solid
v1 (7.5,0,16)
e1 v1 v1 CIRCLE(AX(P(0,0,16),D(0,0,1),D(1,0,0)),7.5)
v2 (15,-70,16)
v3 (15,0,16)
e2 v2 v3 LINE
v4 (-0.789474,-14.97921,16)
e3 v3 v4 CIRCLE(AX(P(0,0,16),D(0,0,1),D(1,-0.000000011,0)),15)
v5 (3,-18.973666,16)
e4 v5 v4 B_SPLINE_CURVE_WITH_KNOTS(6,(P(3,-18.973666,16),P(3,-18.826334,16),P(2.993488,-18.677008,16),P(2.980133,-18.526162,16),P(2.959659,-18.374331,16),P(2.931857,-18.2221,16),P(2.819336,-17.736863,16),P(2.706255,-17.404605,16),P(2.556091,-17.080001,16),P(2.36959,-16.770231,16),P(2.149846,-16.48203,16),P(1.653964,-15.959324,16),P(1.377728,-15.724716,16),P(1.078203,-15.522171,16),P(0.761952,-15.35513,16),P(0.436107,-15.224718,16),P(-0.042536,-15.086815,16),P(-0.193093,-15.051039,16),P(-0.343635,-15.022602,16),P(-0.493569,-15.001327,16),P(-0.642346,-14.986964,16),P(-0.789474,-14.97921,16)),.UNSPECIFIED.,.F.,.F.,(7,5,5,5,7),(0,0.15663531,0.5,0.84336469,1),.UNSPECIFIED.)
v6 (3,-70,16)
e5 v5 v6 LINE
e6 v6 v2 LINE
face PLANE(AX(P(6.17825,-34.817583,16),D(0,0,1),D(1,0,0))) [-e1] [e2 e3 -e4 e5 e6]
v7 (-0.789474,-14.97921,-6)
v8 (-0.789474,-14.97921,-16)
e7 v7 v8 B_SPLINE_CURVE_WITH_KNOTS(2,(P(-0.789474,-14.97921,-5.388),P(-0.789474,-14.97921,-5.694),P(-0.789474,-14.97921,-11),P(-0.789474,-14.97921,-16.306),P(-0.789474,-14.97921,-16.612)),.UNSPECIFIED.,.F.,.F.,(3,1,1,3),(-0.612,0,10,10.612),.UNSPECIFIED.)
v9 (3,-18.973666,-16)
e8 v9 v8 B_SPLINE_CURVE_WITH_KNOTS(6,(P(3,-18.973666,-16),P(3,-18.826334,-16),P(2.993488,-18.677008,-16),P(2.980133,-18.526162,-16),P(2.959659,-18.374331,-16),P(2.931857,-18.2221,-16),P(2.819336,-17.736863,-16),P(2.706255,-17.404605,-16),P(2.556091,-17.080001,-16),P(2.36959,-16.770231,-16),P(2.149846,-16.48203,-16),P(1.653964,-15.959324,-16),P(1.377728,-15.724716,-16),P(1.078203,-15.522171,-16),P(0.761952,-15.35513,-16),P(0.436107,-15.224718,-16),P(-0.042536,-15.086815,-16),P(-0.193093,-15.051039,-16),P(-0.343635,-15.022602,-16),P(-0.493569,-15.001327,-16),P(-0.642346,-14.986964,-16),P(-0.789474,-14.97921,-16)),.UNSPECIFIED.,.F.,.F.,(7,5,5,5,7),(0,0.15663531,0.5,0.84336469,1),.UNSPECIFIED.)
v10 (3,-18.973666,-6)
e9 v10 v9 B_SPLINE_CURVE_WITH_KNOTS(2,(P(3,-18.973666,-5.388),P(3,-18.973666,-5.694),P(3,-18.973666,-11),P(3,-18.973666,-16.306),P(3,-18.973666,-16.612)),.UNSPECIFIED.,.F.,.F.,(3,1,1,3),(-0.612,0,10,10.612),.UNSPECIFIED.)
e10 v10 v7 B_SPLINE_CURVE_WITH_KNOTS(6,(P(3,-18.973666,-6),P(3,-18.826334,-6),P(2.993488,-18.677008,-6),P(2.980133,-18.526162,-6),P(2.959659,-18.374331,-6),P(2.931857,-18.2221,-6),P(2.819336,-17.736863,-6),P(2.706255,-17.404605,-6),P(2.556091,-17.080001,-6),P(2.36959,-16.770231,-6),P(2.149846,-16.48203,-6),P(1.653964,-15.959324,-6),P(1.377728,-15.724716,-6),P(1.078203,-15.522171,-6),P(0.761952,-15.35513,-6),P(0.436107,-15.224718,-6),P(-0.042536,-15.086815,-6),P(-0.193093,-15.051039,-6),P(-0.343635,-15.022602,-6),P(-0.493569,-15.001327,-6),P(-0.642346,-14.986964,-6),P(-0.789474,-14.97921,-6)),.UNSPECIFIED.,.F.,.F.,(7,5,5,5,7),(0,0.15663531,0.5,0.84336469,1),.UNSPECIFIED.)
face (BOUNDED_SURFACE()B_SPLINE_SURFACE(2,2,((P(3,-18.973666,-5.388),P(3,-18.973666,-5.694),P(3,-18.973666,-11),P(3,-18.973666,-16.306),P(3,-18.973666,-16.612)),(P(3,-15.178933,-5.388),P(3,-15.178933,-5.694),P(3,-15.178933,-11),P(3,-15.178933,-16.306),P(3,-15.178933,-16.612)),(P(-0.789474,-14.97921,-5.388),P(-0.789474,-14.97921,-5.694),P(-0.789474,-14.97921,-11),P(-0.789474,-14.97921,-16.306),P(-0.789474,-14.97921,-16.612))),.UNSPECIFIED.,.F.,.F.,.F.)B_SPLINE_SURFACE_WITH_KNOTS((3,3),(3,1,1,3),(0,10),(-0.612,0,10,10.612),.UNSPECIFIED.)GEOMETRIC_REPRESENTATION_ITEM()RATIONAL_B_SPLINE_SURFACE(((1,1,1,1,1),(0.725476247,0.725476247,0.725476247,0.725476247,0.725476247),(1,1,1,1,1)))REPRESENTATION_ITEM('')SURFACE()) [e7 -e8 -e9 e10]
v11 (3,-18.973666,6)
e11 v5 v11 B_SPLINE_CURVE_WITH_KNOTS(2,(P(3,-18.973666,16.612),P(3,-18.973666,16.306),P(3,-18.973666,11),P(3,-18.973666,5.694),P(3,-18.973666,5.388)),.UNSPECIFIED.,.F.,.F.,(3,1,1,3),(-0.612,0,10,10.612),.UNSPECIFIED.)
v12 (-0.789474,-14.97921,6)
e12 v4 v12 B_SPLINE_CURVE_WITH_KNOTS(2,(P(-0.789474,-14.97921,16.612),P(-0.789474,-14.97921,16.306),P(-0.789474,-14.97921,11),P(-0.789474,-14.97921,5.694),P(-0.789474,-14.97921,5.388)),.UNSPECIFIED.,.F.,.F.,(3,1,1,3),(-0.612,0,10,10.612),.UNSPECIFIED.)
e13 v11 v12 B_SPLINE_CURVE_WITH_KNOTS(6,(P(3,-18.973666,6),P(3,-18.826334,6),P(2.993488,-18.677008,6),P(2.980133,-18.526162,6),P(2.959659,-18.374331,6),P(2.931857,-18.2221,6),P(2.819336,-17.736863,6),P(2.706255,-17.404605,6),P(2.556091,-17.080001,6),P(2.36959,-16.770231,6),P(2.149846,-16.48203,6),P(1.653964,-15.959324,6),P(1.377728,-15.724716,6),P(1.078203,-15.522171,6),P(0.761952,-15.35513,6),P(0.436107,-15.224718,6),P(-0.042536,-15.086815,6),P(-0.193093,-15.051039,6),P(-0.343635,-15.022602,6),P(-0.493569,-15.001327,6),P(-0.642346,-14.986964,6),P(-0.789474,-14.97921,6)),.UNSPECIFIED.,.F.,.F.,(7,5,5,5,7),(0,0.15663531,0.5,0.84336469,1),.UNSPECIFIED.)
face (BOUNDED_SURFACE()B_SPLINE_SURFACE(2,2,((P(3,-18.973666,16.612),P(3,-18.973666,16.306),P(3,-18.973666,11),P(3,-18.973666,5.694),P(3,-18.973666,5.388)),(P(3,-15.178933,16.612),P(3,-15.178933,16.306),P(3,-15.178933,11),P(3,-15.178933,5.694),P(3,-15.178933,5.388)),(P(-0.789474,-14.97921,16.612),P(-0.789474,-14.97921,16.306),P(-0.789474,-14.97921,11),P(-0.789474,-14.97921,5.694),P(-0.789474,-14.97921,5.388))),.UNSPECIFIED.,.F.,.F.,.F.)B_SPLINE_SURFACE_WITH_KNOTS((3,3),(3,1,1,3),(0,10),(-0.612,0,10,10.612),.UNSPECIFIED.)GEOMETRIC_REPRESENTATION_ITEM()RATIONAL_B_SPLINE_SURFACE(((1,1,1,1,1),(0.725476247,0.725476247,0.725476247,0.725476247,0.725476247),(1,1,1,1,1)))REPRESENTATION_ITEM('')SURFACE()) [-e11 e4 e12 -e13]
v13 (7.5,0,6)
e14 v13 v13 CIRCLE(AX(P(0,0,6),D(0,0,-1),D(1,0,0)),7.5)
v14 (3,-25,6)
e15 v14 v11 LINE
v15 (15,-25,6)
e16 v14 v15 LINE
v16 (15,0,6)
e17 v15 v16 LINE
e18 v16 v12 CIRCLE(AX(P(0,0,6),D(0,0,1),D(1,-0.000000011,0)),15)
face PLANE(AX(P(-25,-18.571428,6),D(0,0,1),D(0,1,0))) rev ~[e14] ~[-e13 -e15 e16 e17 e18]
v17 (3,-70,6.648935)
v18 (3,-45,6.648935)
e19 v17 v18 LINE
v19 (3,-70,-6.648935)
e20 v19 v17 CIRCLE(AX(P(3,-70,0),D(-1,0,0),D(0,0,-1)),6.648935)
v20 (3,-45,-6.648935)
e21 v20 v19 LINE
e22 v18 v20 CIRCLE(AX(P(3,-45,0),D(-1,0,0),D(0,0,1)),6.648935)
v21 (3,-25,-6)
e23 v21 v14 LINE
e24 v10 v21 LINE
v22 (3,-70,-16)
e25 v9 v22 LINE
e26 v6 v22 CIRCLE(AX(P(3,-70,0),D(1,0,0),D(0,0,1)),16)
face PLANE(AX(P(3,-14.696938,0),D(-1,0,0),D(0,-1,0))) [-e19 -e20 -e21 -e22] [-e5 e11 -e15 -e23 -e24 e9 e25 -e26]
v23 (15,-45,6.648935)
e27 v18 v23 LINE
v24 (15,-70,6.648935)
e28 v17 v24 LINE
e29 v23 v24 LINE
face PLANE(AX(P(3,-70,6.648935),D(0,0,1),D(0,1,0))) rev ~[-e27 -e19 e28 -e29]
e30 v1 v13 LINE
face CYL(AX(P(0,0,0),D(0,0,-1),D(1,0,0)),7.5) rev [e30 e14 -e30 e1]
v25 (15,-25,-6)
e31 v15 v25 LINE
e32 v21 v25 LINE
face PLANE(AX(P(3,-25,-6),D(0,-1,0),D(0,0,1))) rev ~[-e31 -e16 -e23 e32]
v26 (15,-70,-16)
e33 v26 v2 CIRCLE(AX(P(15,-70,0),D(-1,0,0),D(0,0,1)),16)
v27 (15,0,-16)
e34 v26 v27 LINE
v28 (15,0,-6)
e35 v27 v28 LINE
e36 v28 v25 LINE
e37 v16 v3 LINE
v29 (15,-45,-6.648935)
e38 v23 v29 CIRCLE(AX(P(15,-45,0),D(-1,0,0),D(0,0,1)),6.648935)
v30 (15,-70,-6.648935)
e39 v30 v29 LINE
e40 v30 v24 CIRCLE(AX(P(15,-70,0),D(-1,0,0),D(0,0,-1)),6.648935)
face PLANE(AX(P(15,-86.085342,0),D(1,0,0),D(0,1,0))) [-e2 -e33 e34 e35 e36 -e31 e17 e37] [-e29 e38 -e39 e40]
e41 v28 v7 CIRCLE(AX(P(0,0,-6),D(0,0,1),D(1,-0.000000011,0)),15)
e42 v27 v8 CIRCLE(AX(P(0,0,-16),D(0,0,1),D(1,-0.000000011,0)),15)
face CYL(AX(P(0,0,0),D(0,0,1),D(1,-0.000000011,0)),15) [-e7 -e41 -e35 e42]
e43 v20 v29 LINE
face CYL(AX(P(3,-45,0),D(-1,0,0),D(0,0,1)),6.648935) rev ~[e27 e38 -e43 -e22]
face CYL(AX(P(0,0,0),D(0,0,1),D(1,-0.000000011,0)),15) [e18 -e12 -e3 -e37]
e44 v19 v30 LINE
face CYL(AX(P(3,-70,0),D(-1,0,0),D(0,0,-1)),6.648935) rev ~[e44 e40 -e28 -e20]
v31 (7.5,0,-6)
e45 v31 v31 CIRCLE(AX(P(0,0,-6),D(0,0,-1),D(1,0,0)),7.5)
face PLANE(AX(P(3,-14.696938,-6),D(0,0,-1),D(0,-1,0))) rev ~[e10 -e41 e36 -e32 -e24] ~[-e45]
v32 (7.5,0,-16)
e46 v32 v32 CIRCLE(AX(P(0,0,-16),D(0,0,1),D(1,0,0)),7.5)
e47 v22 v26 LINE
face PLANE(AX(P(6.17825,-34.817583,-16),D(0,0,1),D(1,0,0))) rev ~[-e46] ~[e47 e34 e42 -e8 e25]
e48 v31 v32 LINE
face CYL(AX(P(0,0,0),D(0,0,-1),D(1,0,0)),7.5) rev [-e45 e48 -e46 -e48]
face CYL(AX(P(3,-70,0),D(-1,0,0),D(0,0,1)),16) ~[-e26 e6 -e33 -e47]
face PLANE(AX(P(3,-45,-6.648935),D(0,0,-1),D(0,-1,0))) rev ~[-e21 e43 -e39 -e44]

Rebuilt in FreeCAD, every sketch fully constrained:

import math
import FreeCAD as App
import Part
import Sketcher


def edges_at(feature, points):
    """Names of the edges that pass closest to the given points."""
    edges = feature.Shape.Edges
    near = lambda p: min(range(len(edges)), key=lambda i: edges[i].distToShape(Part.Vertex(*p))[0])
    return sorted({f"Edge{near(p) + 1}" for p in points})


def add_polygon(sketch, points):
    """Adds a closed chain of lines whose ends are joined by coincident constraints."""
    first, n = sketch.GeometryCount, len(points)
    for a, b in zip(points, points[1:] + points[:1]):
        sketch.addGeometry(Part.LineSegment(App.Vector(*a, 0), App.Vector(*b, 0)), False)
    for i in range(n):
        sketch.addConstraint(Sketcher.Constraint("Coincident", first + i, 2, first + (i + 1) % n, 1))

doc = App.newDocument("Part")
params = doc.addObject("Spreadsheet::Sheet", "Params")
for row, (alias, value) in enumerate([
    ("sketch1_diameter", "15 mm"),
    ("sketch1_radius", "15 mm"),
    ("sketch1_width", "12 mm"),
    ("pad1_length", "32 mm"),
    ("sketch2_radius", "16 mm"),
    ("sketch2_width", "25 mm"),
    ("sketch2_height", "12 mm"),
    ("sketch3_height", "12 mm"),
    ("fillet_radius", "4 mm"),
], start=1):
    params.set(f"A{row}", alias)
    params.set(f"B{row}", "=" + value)
    params.setAlias(f"B{row}", alias)

body = doc.addObject("PartDesign::Body", "Body")

sketch1 = body.newObject("Sketcher::SketchObject", "Sketch")
sketch1.AttachmentSupport = (doc.getObject("XY_Plane"), [""])
sketch1.MapMode = "FlatFace"
sketch1.addGeometry([
    Part.LineSegment(App.Vector(15, -86.1, 0), App.Vector(15, 0, 0)),
    Part.ArcOfCircle(Part.Circle(App.Vector(0, 0, 0), App.Vector(0, 0, 1), 15), math.radians(0), math.radians(270)),
    Part.ArcOfCircle(Part.Circle(App.Vector(0, 0, 0), App.Vector(0, 0, 1), 15), math.radians(-90), math.radians(-78.46)),
    Part.LineSegment(App.Vector(3, -14.7, 0), App.Vector(3, -86.1, 0)),
    Part.LineSegment(App.Vector(3, -86.1, 0), App.Vector(15, -86.1, 0)),
    Part.Circle(App.Vector(0, 0, 0), App.Vector(0, 0, 1), 7.5),
], False)
sketch1.addConstraint([
    Sketcher.Constraint("Tangent", 0, 2, 1, 1),
    Sketcher.Constraint("Tangent", 1, 2, 2, 1),
    Sketcher.Constraint("Coincident", 2, 2, 3, 1),
    Sketcher.Constraint("Coincident", 3, 2, 4, 1),
    Sketcher.Constraint("Coincident", 4, 2, 0, 1),
    Sketcher.Constraint("Vertical", 0),
    Sketcher.Constraint("Vertical", 3),
    Sketcher.Constraint("Horizontal", 4),
    Sketcher.Constraint("Coincident", 1, 3, -1, 1),
    Sketcher.Constraint("Coincident", 5, 3, -1, 1),
    Sketcher.Constraint("PointOnObject", 1, 2, -2),
    Sketcher.Constraint("Diameter", 5, 15.0),
    Sketcher.Constraint("Radius", 1, 15.0),
    Sketcher.Constraint("DistanceX", 4, 1, 4, 2, 12.0),
    Sketcher.Constraint("Radius", 2, 15.000022),
    Sketcher.Constraint("DistanceY", 0, 1, 0, 2, 86.085342),
])
sketch1.setExpression("Constraints[11]", "Params.sketch1_diameter")
sketch1.setExpression("Constraints[12]", "Params.sketch1_radius")
sketch1.setExpression("Constraints[13]", "Params.sketch1_width")
pad1 = body.newObject("PartDesign::Pad", "Pad")
pad1.Profile = sketch1
pad1.setExpression("Length", "Params.pad1_length")
pad1.Midplane = True

sketch2 = body.newObject("Sketcher::SketchObject", "Sketch001")
sketch2.AttachmentSupport = (doc.getObject("YZ_Plane"), [""])
sketch2.MapMode = "FlatFace"
sketch2.AttachmentOffset = App.Placement(App.Vector(0, 0, 3), App.Rotation())
sketch2.addGeometry(Part.ArcOfCircle(Part.Circle(App.Vector(-70, 0, 0), App.Vector(0, 0, 1), 16), math.radians(90), math.radians(270)), False)
sketch2.addGeometry(Part.LineSegment(App.Vector(-70, -16, 0), App.Vector(-86, -16, 0)), False)
sketch2.addGeometry(Part.LineSegment(App.Vector(-86, -16, 0), App.Vector(-86, 16, 0)), False)
sketch2.addGeometry(Part.LineSegment(App.Vector(-86, 16, 0), App.Vector(-70, 16, 0)), False)
sketch2.addGeometry(Part.ArcOfCircle(Part.Circle(App.Vector(-45, 0, 0), App.Vector(0, 0, 1), 7), math.radians(-90), math.radians(90)), False)
sketch2.addGeometry(Part.LineSegment(App.Vector(-45, -7, 0), App.Vector(-70, -7, 0)), False)
sketch2.addGeometry(Part.ArcOfCircle(Part.Circle(App.Vector(-70, 0, 0), App.Vector(0, 0, 1), 7), math.radians(90), math.radians(270)), False)
sketch2.addGeometry(Part.LineSegment(App.Vector(-70, 7, 0), App.Vector(-45, 7, 0)), False)
add_polygon(sketch2, [(-15, 6), (-15, -6), (-25, -6), (-25, 6)])
sketch2.addConstraint([
    Sketcher.Constraint("Tangent", 0, 2, 1, 1),
    Sketcher.Constraint("Coincident", 1, 2, 2, 1),
    Sketcher.Constraint("Coincident", 2, 2, 3, 1),
    Sketcher.Constraint("Tangent", 3, 2, 0, 1),
    Sketcher.Constraint("Tangent", 4, 1, 5, 1),
    Sketcher.Constraint("Tangent", 5, 2, 6, 2),
    Sketcher.Constraint("Tangent", 6, 1, 7, 1),
    Sketcher.Constraint("Tangent", 7, 2, 4, 2),
    Sketcher.Constraint("Horizontal", 1),
    Sketcher.Constraint("Vertical", 2),
    Sketcher.Constraint("Horizontal", 3),
    Sketcher.Constraint("Horizontal", 5),
    Sketcher.Constraint("Horizontal", 7),
    Sketcher.Constraint("Vertical", 8),
    Sketcher.Constraint("Horizontal", 9),
    Sketcher.Constraint("Vertical", 10),
    Sketcher.Constraint("Horizontal", 11),
    Sketcher.Constraint("Coincident", 6, 3, 0, 3),
    Sketcher.Constraint("PointOnObject", 0, 3, -1),
    Sketcher.Constraint("Radius", 0, 16.0),
    Sketcher.Constraint("DistanceX", 5, 2, 5, 1, 25.0),
    Sketcher.Constraint("DistanceY", 8, 2, 8, 1, 12.0),
    Sketcher.Constraint("DistanceX", 0, 3, -1, 1, 70.0),
    Sketcher.Constraint("DistanceY", 8, 2, -1, 1, 6.0),
    Sketcher.Constraint("DistanceX", 9, 2, -1, 1, 25.0),
    Sketcher.Constraint("Radius", 4, 6.648935),
    Sketcher.Constraint("DistanceX", 1, 2, 1, 1, 16.085342),
    Sketcher.Constraint("DistanceX", 9, 2, 9, 1, 10.303062),
])
sketch2.setExpression("Constraints[23]", "Params.sketch2_radius")
sketch2.setExpression("Constraints[24]", "Params.sketch2_width")
sketch2.setExpression("Constraints[25]", "Params.sketch2_height")
pocket1 = body.newObject("PartDesign::Pocket", "Pocket")
pocket1.Profile = sketch2
pocket1.Type = "ThroughAll"
pocket1.Reversed = True

sketch3 = body.newObject("Sketcher::SketchObject", "Sketch002")
sketch3.AttachmentSupport = (doc.getObject("YZ_Plane"), [""])
sketch3.MapMode = "FlatFace"
sketch3.AttachmentOffset = App.Placement(App.Vector(0, 0, -25), App.Rotation())
add_polygon(sketch3, [(-19, 6), (-19, -6), (19, -6), (19, 6)])
sketch3.addConstraint([
    Sketcher.Constraint("Vertical", 0),
    Sketcher.Constraint("Horizontal", 1),
    Sketcher.Constraint("Vertical", 2),
    Sketcher.Constraint("Horizontal", 3),
    Sketcher.Constraint("Symmetric", 0, 2, 2, 2, -1, 1),
    Sketcher.Constraint("DistanceY", 0, 2, 0, 1, 12.0),
    Sketcher.Constraint("DistanceX", 1, 1, 1, 2, 37.142856),
])
sketch3.setExpression("Constraints[9]", "Params.sketch3_height")
pocket2 = body.newObject("PartDesign::Pocket", "Pocket001")
pocket2.Profile = sketch3
pocket2.Type = "ThroughAll"
pocket2.Reversed = True
doc.recompute()

fillet = body.newObject("PartDesign::Fillet", "Fillet")
fillet.Base = (pocket2, edges_at(pocket2, [(3, -14.697, -11), (3, -14.697, 11)]))
fillet.setExpression("Radius", "Params.fillet_radius")

doc.recompute()
